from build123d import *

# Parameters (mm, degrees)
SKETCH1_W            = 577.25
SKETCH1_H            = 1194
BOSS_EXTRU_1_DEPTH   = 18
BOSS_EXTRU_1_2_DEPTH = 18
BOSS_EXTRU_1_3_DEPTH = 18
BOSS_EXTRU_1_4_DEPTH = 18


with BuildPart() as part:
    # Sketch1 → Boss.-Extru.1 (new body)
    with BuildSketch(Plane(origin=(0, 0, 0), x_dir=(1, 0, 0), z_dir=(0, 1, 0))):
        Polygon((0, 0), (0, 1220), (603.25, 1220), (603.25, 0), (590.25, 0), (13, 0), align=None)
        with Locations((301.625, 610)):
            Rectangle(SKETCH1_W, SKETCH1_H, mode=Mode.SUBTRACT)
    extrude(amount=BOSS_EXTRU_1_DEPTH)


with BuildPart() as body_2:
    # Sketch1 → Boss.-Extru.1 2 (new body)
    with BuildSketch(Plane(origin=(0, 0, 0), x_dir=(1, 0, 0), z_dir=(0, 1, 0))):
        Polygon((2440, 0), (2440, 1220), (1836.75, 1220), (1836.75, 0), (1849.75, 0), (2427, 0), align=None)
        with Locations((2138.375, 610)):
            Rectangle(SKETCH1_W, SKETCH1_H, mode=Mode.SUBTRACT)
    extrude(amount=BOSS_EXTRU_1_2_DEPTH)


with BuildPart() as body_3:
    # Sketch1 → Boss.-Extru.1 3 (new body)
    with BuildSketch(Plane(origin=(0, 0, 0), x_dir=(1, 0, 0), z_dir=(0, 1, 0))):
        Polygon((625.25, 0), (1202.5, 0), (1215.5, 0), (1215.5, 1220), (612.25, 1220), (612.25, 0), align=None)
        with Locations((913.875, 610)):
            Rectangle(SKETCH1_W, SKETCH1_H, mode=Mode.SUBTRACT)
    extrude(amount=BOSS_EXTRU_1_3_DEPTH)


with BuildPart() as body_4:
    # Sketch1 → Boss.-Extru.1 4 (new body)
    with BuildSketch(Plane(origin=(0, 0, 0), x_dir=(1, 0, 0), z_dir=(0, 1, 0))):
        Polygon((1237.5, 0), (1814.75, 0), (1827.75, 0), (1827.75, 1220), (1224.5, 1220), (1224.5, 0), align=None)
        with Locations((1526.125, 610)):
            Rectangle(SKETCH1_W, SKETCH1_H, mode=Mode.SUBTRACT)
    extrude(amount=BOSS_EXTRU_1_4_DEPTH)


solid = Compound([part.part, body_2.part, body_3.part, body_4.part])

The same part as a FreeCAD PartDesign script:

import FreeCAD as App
import Part
import Sketcher
Q = App.Units.Quantity


def add_polygon(sketch, points):
    """Adds a closed chain of lines whose ends are joined by coincident constraints."""
    first, n = sketch.GeometryCount, len(points)
    for a, b in zip(points, points[1:] + points[:1]):
        sketch.addGeometry(Part.LineSegment(App.Vector(*a, 0), App.Vector(*b, 0)), False)
    for i in range(n):
        sketch.addConstraint(Sketcher.Constraint("Coincident", first + i, 2, first + (i + 1) % n, 1))

doc = App.newDocument("Part")
body = doc.addObject("PartDesign::Body", "Body")

sketch1 = body.newObject("Sketcher::SketchObject", "Sketch")
sketch1.AttachmentSupport = (doc.getObject("XZ_Plane"), [""])
sketch1.MapMode = "FlatFace"
add_polygon(sketch1, [(0, -1220), (0, 0), (603.25, 0), (603.25, -1220)])
add_polygon(sketch1, [(13, -13), (13, -1207), (590.25, -1207), (590.25, -13)])
sketch1.addConstraint(Sketcher.Constraint("Vertical", 0))
sketch1.addConstraint(Sketcher.Constraint("Horizontal", 1))
sketch1.addConstraint(Sketcher.Constraint("Vertical", 2))
sketch1.addConstraint(Sketcher.Constraint("Horizontal", 3))
sketch1.addConstraint(Sketcher.Constraint("Vertical", 4))
sketch1.addConstraint(Sketcher.Constraint("Horizontal", 5))
sketch1.addConstraint(Sketcher.Constraint("Vertical", 6))
sketch1.addConstraint(Sketcher.Constraint("Horizontal", 7))
sketch1.addConstraint(Sketcher.Constraint("Coincident", 0, 2, -1, 1))
sketch1.addConstraint(Sketcher.Constraint("DistanceY", 0, 1, 0, 2, Q("1220 mm")))
sketch1.addConstraint(Sketcher.Constraint("DistanceY", 4, 2, 4, 1, Q("1194 mm")))
sketch1.addConstraint(Sketcher.Constraint("DistanceX", -1, 1, 4, 2, Q("13 mm")))
sketch1.addConstraint(Sketcher.Constraint("DistanceY", 4, 2, -1, 1, Q("1207 mm")))
sketch1.addConstraint(Sketcher.Constraint("DistanceX", 5, 2, 2, 2, Q("13 mm")))
sketch1.addConstraint(Sketcher.Constraint("DistanceX", 1, 1, 1, 2, Q("603.25 mm")))
pad1 = body.newObject("PartDesign::Pad", "Pad")
pad1.Profile = sketch1
pad1.Length = 18
pad1.Reversed = True
body2 = doc.addObject("PartDesign::Body", "Body001")

sketch2 = body2.newObject("Sketcher::SketchObject", "Sketch001")
sketch2.AttachmentSupport = (doc.getObject("XZ_Plane001"), [""])
sketch2.MapMode = "FlatFace"
add_polygon(sketch2, [(2440, 0), (2440, -1220), (1836.75, -1220), (1836.75, 0)])
add_polygon(sketch2, [(2427, -13), (1849.75, -13), (1849.75, -1207), (2427, -1207)])
sketch2.addConstraint(Sketcher.Constraint("Vertical", 0))
sketch2.addConstraint(Sketcher.Constraint("Horizontal", 1))
sketch2.addConstraint(Sketcher.Constraint("Vertical", 2))
sketch2.addConstraint(Sketcher.Constraint("Horizontal", 3))
sketch2.addConstraint(Sketcher.Constraint("Horizontal", 4))
sketch2.addConstraint(Sketcher.Constraint("Vertical", 5))
sketch2.addConstraint(Sketcher.Constraint("Horizontal", 6))
sketch2.addConstraint(Sketcher.Constraint("Vertical", 7))
sketch2.addConstraint(Sketcher.Constraint("PointOnObject", 2, 2, -1))
sketch2.addConstraint(Sketcher.Constraint("DistanceY", 0, 2, 0, 1, Q("1220 mm")))
sketch2.addConstraint(Sketcher.Constraint("DistanceY", 5, 2, 5, 1, Q("1194 mm")))
sketch2.addConstraint(Sketcher.Constraint("DistanceX", -1, 1, 0, 2, Q("2440 mm")))
sketch2.addConstraint(Sketcher.Constraint("DistanceY", 4, 2, -1, 1, Q("13 mm")))
sketch2.addConstraint(Sketcher.Constraint("DistanceX", -1, 1, 6, 2, Q("2427 mm")))
sketch2.addConstraint(Sketcher.Constraint("DistanceX", 2, 2, 4, 2, Q("13 mm")))
sketch2.addConstraint(Sketcher.Constraint("DistanceX", 1, 2, 1, 1, Q("603.25 mm")))
pad2 = body2.newObject("PartDesign::Pad", "Pad001")
pad2.Profile = sketch2
pad2.Length = 18
pad2.Reversed = True
body3 = doc.addObject("PartDesign::Body", "Body002")

sketch3 = body3.newObject("Sketcher::SketchObject", "Sketch002")
sketch3.AttachmentSupport = (doc.getObject("XZ_Plane002"), [""])
sketch3.MapMode = "FlatFace"
add_polygon(sketch3, [(1215.5, 0), (1215.5, -1220), (612.25, -1220), (612.25, 0)])
add_polygon(sketch3, [(1202.5, -13), (625.25, -13), (625.25, -1207), (1202.5, -1207)])
sketch3.addConstraint(Sketcher.Constraint("Vertical", 0))
sketch3.addConstraint(Sketcher.Constraint("Horizontal", 1))
sketch3.addConstraint(Sketcher.Constraint("Vertical", 2))
sketch3.addConstraint(Sketcher.Constraint("Horizontal", 3))
sketch3.addConstraint(Sketcher.Constraint("Horizontal", 4))
sketch3.addConstraint(Sketcher.Constraint("Vertical", 5))
sketch3.addConstraint(Sketcher.Constraint("Horizontal", 6))
sketch3.addConstraint(Sketcher.Constraint("Vertical", 7))
sketch3.addConstraint(Sketcher.Constraint("PointOnObject", 2, 2, -1))
sketch3.addConstraint(Sketcher.Constraint("DistanceY", 0, 2, 0, 1, Q("1220 mm")))
sketch3.addConstraint(Sketcher.Constraint("DistanceY", 5, 2, 5, 1, Q("1194 mm")))
sketch3.addConstraint(Sketcher.Constraint("DistanceY", 4, 2, -1, 1, Q("13 mm")))
sketch3.addConstraint(Sketcher.Constraint("DistanceX", 2, 2, 4, 2, Q("13 mm")))
sketch3.addConstraint(Sketcher.Constraint("DistanceX", 6, 2, 0, 2, Q("13 mm")))
sketch3.addConstraint(Sketcher.Constraint("DistanceX", 1, 2, 1, 1, Q("603.25 mm")))
sketch3.addConstraint(Sketcher.Constraint("DistanceX", -1, 1, 0, 2, Q("1215.5 mm")))
pad3 = body3.newObject("PartDesign::Pad", "Pad002")
pad3.Profile = sketch3
pad3.Length = 18
pad3.Reversed = True
body4 = doc.addObject("PartDesign::Body", "Body003")

sketch4 = body4.newObject("Sketcher::SketchObject", "Sketch003")
sketch4.AttachmentSupport = (doc.getObject("XZ_Plane003"), [""])
sketch4.MapMode = "FlatFace"
add_polygon(sketch4, [(1827.75, 0), (1827.75, -1220), (1224.5, -1220), (1224.5, 0)])
add_polygon(sketch4, [(1814.75, -13), (1237.5, -13), (1237.5, -1207), (1814.75, -1207)])
sketch4.addConstraint(Sketcher.Constraint("Vertical", 0))
sketch4.addConstraint(Sketcher.Constraint("Horizontal", 1))
sketch4.addConstraint(Sketcher.Constraint("Vertical", 2))
sketch4.addConstraint(Sketcher.Constraint("Horizontal", 3))
sketch4.addConstraint(Sketcher.Constraint("Horizontal", 4))
sketch4.addConstraint(Sketcher.Constraint("Vertical", 5))
sketch4.addConstraint(Sketcher.Constraint("Horizontal", 6))
sketch4.addConstraint(Sketcher.Constraint("Vertical", 7))
sketch4.addConstraint(Sketcher.Constraint("PointOnObject", 2, 2, -1))
sketch4.addConstraint(Sketcher.Constraint("DistanceY", 0, 2, 0, 1, Q("1220 mm")))
sketch4.addConstraint(Sketcher.Constraint("DistanceY", 5, 2, 5, 1, Q("1194 mm")))
sketch4.addConstraint(Sketcher.Constraint("DistanceY", 4, 2, -1, 1, Q("13 mm")))
sketch4.addConstraint(Sketcher.Constraint("DistanceX", 2, 2, 4, 2, Q("13 mm")))
sketch4.addConstraint(Sketcher.Constraint("DistanceX", 6, 2, 0, 2, Q("13 mm")))
sketch4.addConstraint(Sketcher.Constraint("DistanceX", 1, 2, 1, 1, Q("603.25 mm")))
sketch4.addConstraint(Sketcher.Constraint("DistanceX", -1, 1, 1, 2, Q("1224.5 mm")))
pad4 = body4.newObject("PartDesign::Pad", "Pad003")
pad4.Profile = sketch4
pad4.Length = 18
pad4.Reversed = True

doc.recompute()
